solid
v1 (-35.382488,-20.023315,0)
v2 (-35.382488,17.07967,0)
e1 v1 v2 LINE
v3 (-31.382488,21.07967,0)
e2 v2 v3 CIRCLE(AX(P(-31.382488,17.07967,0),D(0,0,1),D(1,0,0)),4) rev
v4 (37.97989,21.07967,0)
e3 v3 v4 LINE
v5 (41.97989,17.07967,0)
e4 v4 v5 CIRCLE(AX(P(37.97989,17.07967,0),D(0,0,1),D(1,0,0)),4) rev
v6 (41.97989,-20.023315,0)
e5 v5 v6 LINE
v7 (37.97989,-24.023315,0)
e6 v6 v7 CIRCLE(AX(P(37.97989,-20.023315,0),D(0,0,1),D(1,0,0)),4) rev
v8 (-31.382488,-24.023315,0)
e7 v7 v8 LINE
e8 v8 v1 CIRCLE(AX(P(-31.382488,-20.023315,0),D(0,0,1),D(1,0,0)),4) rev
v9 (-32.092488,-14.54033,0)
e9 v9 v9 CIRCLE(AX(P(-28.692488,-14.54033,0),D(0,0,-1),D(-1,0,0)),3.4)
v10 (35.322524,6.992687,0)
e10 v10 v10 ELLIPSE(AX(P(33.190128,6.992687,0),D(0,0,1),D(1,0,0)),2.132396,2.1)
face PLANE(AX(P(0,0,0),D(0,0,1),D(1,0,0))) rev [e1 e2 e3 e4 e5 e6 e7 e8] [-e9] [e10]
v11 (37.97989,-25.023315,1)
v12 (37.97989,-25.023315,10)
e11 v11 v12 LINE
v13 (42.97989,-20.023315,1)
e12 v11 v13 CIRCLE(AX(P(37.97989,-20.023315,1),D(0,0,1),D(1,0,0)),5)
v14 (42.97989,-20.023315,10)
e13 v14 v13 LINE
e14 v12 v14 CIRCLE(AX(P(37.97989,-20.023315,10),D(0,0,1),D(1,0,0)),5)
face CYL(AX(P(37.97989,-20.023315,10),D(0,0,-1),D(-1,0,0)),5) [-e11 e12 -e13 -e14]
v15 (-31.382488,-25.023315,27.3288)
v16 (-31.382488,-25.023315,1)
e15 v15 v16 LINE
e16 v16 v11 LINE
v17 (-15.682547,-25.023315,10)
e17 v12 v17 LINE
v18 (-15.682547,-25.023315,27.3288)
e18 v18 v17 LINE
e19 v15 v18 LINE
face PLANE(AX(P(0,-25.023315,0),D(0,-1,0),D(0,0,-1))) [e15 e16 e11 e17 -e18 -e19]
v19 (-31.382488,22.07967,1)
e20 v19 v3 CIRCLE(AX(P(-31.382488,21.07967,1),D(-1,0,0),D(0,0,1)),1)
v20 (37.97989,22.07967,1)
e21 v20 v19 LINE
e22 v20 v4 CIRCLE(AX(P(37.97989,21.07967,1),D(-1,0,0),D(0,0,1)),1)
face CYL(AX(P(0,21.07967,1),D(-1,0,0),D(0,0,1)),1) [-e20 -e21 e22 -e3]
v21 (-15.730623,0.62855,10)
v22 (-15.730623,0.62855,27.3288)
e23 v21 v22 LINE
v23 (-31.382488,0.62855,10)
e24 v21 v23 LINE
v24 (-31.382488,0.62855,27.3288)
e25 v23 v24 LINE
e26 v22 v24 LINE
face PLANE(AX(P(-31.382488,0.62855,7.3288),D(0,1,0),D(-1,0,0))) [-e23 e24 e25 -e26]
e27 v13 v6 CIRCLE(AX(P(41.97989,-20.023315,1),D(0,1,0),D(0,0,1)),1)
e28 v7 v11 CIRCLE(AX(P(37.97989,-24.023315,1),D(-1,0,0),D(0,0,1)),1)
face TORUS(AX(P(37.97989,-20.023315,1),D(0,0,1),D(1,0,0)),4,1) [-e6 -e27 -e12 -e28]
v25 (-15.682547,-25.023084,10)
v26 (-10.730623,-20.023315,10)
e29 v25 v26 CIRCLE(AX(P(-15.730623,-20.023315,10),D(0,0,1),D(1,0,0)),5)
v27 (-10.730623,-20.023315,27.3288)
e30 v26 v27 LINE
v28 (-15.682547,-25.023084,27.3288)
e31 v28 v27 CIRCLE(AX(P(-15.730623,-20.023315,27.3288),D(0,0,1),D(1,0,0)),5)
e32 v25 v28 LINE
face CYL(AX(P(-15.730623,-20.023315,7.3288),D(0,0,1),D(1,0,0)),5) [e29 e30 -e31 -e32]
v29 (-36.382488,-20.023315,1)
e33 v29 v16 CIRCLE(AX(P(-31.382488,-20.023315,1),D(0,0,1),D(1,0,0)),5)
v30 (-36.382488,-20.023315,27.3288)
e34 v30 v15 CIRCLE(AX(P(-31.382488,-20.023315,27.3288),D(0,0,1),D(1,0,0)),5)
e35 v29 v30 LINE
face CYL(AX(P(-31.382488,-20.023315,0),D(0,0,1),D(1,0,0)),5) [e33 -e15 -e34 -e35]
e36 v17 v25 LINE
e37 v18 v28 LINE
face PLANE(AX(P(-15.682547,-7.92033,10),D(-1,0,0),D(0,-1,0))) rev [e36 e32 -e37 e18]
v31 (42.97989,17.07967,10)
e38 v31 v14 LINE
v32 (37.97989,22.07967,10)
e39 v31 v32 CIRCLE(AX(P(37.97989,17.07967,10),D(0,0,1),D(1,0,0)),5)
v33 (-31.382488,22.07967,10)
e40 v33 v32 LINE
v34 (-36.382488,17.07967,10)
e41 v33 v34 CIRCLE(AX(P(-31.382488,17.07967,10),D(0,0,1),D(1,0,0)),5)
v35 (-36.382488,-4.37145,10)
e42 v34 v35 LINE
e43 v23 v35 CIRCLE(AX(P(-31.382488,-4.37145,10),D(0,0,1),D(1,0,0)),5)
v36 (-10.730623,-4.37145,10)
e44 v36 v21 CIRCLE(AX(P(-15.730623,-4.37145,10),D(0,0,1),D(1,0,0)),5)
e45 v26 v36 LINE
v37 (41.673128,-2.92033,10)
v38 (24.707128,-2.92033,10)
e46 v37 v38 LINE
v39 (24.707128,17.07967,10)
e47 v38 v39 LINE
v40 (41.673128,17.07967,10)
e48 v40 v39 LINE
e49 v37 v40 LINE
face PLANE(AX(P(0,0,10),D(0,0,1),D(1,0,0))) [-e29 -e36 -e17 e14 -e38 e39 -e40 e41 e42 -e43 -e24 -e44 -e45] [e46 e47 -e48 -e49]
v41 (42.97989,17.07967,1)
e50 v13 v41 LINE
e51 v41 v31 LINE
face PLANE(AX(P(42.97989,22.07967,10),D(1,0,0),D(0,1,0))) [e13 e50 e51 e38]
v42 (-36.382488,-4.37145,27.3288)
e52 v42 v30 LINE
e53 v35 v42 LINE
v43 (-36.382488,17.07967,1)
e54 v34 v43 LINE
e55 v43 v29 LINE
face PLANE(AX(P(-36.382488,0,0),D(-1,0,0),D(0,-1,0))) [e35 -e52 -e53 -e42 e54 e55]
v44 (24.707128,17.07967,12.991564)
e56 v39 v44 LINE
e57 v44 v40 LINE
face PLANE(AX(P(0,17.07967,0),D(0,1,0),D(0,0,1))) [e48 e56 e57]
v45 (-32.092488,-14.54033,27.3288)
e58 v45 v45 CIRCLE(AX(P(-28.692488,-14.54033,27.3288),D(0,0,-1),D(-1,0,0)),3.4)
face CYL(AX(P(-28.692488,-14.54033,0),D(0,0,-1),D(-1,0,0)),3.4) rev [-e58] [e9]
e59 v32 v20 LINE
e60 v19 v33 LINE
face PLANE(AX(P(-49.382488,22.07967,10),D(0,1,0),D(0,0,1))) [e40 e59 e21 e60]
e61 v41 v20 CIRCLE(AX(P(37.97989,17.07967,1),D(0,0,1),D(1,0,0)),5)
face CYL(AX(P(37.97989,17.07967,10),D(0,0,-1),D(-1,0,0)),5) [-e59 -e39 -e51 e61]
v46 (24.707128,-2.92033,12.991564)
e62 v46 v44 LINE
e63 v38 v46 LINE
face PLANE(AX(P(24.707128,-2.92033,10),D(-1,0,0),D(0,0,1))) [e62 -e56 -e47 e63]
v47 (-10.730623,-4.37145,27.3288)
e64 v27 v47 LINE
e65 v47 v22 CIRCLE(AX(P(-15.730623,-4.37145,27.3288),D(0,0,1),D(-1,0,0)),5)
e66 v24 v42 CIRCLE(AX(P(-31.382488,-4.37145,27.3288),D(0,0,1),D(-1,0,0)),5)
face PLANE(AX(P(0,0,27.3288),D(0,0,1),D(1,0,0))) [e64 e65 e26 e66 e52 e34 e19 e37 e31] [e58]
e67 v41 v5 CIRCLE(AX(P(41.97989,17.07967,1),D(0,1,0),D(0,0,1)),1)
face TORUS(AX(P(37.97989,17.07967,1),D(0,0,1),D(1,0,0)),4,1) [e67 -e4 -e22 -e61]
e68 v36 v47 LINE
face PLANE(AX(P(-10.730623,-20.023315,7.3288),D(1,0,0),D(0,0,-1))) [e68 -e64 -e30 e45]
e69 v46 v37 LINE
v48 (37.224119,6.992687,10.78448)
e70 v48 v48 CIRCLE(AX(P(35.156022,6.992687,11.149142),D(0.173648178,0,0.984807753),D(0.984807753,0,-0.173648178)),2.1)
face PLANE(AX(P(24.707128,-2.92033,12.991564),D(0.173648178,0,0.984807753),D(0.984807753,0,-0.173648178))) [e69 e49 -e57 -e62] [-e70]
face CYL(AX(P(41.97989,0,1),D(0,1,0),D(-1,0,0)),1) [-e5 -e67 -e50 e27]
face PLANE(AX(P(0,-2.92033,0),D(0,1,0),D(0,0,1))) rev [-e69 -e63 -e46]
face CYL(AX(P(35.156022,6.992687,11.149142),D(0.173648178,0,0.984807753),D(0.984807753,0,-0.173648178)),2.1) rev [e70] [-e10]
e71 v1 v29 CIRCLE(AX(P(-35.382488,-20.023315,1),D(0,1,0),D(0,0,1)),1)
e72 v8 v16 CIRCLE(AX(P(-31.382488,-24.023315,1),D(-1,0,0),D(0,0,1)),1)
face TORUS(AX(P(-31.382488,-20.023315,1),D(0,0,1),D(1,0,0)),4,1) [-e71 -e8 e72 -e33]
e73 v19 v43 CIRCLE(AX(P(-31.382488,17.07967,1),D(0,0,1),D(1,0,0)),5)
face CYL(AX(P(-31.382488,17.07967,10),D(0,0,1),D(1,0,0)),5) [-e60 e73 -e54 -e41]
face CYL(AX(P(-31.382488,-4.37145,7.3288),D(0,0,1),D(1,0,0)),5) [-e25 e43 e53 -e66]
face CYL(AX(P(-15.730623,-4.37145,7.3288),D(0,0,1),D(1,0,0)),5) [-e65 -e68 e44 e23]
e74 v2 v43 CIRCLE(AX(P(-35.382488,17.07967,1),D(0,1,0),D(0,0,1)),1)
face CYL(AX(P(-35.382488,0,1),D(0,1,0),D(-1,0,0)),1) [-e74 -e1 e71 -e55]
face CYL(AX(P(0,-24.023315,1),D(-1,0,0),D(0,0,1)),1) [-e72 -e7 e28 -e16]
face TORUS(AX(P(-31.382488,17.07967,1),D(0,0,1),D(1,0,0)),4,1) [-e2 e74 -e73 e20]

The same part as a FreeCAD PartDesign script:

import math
import FreeCAD as App
import Part
import Sketcher

V = App.Vector
Q = App.Units.Quantity


def edges_at(feature, points):
    """Names of the edges that pass closest to the given points."""
    edges = feature.Shape.Edges
    near = lambda p: min(range(len(edges)), key=lambda i: edges[i].distToShape(Part.Vertex(*p))[0])
    return sorted({f"Edge{near(p) + 1}" for p in points})


def add_polygon(sketch, points):
    """Adds a closed chain of lines whose ends are joined by coincident constraints."""
    first, n = sketch.GeometryCount, len(points)
    for a, b in zip(points, points[1:] + points[:1]):
        sketch.addGeometry(Part.LineSegment(App.Vector(*a, 0), App.Vector(*b, 0)), False)
    for i in range(n):
        sketch.addConstraint(Sketcher.Constraint("Coincident", first + i, 2, first + (i + 1) % n, 1))

doc = App.newDocument("Part")
body = doc.addObject("PartDesign::Body", "Body")

sketch1 = doc.addObject("Sketcher::SketchObject", "Sketch")
body.addObject(sketch1)
sketch1.AttachmentSupport = (doc.XY_Plane, [""])
sketch1.MapMode = "FlatFace"
add_polygon(sketch1, [(42.97989, 22.07967), (-49.382488, 22.07967), (-49.382488, -7.92033), (-49.382488, -41.023315), (-5.682547, -41.023315), (-5.682547, -7.92033), (42.97989, -7.92033)])
sketch1.addConstraint([
    Sketcher.Constraint("Horizontal", 0),
    Sketcher.Constraint("Vertical", 1),
    Sketcher.Constraint("Vertical", 2),
    Sketcher.Constraint("Horizontal", 3),
    Sketcher.Constraint("Vertical", 4),
    Sketcher.Constraint("Horizontal", 5),
    Sketcher.Constraint("Vertical", 6),
    Sketcher.Constraint("Horizontal", 1, 2, 4, 2),
    Sketcher.Constraint("DistanceY", 1, 2, 1, 1, Q("30 mm")),
    Sketcher.Constraint("DistanceX", 0, 2, 0, 1, Q("92.362378 mm")),
    Sketcher.Constraint("DistanceX", 3, 1, 3, 2, Q("43.699941 mm")),
    Sketcher.Constraint("DistanceY", 2, 2, 2, 1, Q("33.102985 mm")),
    Sketcher.Constraint("DistanceY", -1, 1, 0, 2, Q("22.07967 mm")),
    Sketcher.Constraint("DistanceX", -1, 1, 5, 2, Q("42.97989 mm")),
])
pad1 = doc.addObject("PartDesign::Pad", "Pad")
body.addObject(pad1)
pad1.Profile = sketch1
pad1.Length = 10

sketch2 = doc.addObject("Sketcher::SketchObject", "Sketch001")
body.addObject(sketch2)
sketch2.AttachmentSupport = (doc.XZ_Plane, [""])
sketch2.MapMode = "FlatFace"
sketch2.AttachmentOffset = App.Placement(V(0, 0, -7.07967), App.Rotation())
add_polygon(sketch2, [(24.707128, 12.991564), (24.707128, 10), (41.673128, 10)])
sketch2.addConstraint([
    Sketcher.Constraint("Vertical", 0),
    Sketcher.Constraint("Horizontal", 1),
    Sketcher.Constraint("Angle", 2, Q("170 deg")),
    Sketcher.Constraint("DistanceY", -1, 1, 0, 2, Q("10 mm")),
    Sketcher.Constraint("DistanceX", 1, 1, 1, 2, Q("16.966 mm")),
    Sketcher.Constraint("DistanceX", -1, 1, 0, 2, Q("24.707128 mm")),
])
pad2 = doc.addObject("PartDesign::Pad", "Pad001")
body.addObject(pad2)
pad2.Profile = sketch2
pad2.Length = 20
pad2.Midplane = True

sketch3 = doc.addObject("Sketcher::SketchObject", "Sketch002")
body.addObject(sketch3)
sketch3.Placement = App.Placement(V(2.966699, 0, 16.824988), App.Rotation(V(0.984807753, 0, -0.173648178), V(0, 1, 0), V(0.173648178, 0, 0.984807753), "ZXY"))
sketch3.addGeometry(Part.Circle(V(32.685895, 6.992687, 0), V(0, 0, 1), 2.1), False)
sketch3.addConstraint([
    Sketcher.Constraint("Diameter", 0, Q("4.2 mm")),
    Sketcher.Constraint("DistanceX", -1, 1, 0, 3, Q("32.685895 mm")),
    Sketcher.Constraint("DistanceY", -1, 1, 0, 3, Q("6.992687 mm")),
])
doc.recompute()
hole = doc.addObject("PartDesign::Hole", "Hole")
body.addObject(hole)
hole.Profile = sketch3
hole.ThreadType = "None"
hole.Diameter = 4.2
hole.DepthType = "ThroughAll"

sketch4 = doc.addObject("Sketcher::SketchObject", "Sketch003")
body.addObject(sketch4)
sketch4.AttachmentSupport = (doc.XY_Plane, [""])
sketch4.MapMode = "FlatFace"
sketch4.AttachmentOffset = App.Placement(V(0, 0, 10), App.Rotation())
add_polygon(sketch4, [(-49.382488, -41.023315), (-5.682547, -41.023315), (-5.682547, -25.023315), (-36.382488, -25.023315), (-36.382488, 22.07967), (-49.382488, 22.07967)])
sketch4.addConstraint([
    Sketcher.Constraint("Horizontal", 0),
    Sketcher.Constraint("Vertical", 1),
    Sketcher.Constraint("Horizontal", 2),
    Sketcher.Constraint("Vertical", 3),
    Sketcher.Constraint("Horizontal", 4),
    Sketcher.Constraint("Vertical", 5),
    Sketcher.Constraint("DistanceX", 4, 2, 4, 1, Q("13 mm")),
    Sketcher.Constraint("DistanceY", 1, 1, 1, 2, Q("16 mm")),
    Sketcher.Constraint("DistanceX", 0, 1, 0, 2, Q("43.699941 mm")),
    Sketcher.Constraint("DistanceY", 3, 1, 3, 2, Q("47.102985 mm")),
    Sketcher.Constraint("DistanceY", -1, 1, 3, 2, Q("22.07967 mm")),
    Sketcher.Constraint("DistanceX", 0, 2, -1, 1, Q("5.682547 mm")),
])
pocket1 = doc.addObject("PartDesign::Pocket", "Pocket")
body.addObject(pocket1)
pocket1.Profile = sketch4
pocket1.Length = 10

sketch5 = doc.addObject("Sketcher::SketchObject", "Sketch004")
body.addObject(sketch5)
sketch5.AttachmentSupport = (doc.XY_Plane, [""])
sketch5.MapMode = "FlatFace"
add_polygon(sketch5, [(-5.682547, -7.92033), (-5.682547, -25.023315), (-15.682547, -25.023315), (-15.682547, -7.92033)])
sketch5.addConstraint([
    Sketcher.Constraint("Vertical", 0),
    Sketcher.Constraint("Horizontal", 1),
    Sketcher.Constraint("Vertical", 2),
    Sketcher.Constraint("Horizontal", 3),
    Sketcher.Constraint("DistanceX", 1, 2, 1, 1, Q("10 mm")),
    Sketcher.Constraint("DistanceY", 0, 2, 0, 1, Q("17.102985 mm")),
    Sketcher.Constraint("DistanceY", 2, 2, -1, 1, Q("7.92033 mm")),
    Sketcher.Constraint("DistanceX", 0, 2, -1, 1, Q("5.682547 mm")),
])
pocket2 = doc.addObject("PartDesign::Pocket", "Pocket001")
body.addObject(pocket2)
pocket2.Profile = sketch5
pocket2.Length = 10
pocket2.Reversed = True

sketch6 = doc.addObject("Sketcher::SketchObject", "Sketch005")
body.addObject(sketch6)
sketch6.AttachmentSupport = (doc.XY_Plane, [""])
sketch6.MapMode = "FlatFace"
sketch6.AttachmentOffset = App.Placement(V(0, 0, 10), App.Rotation())
add_polygon(sketch6, [(-36.382488, -7.92033), (-36.382488, -25.023315), (-15.682547, -25.023315), (-15.682547, -7.92033)])
sketch6.addConstraint([
    Sketcher.Constraint("Vertical", 0),
    Sketcher.Constraint("Horizontal", 1),
    Sketcher.Constraint("Vertical", 2),
    Sketcher.Constraint("Horizontal", 3),
    Sketcher.Constraint("DistanceX", 1, 1, 1, 2, Q("20.699941 mm")),
    Sketcher.Constraint("DistanceY", 0, 2, 0, 1, Q("17.102985 mm")),
    Sketcher.Constraint("DistanceY", 2, 2, -1, 1, Q("7.92033 mm")),
    Sketcher.Constraint("DistanceX", 0, 2, -1, 1, Q("36.382488 mm")),
])
pad3 = doc.addObject("PartDesign::Pad", "Pad002")
body.addObject(pad3)
pad3.Profile = sketch6
pad3.Length = 17.3288

sketch7 = doc.addObject("Sketcher::SketchObject", "Sketch006")
body.addObject(sketch7)
sketch7.AttachmentSupport = (doc.XY_Plane, [""])
sketch7.MapMode = "FlatFace"
add_polygon(sketch7, [(42.97989, -7.92033), (42.97989, -25.023315), (-15.682547, -25.023315), (-15.682547, -7.92033)])
sketch7.addConstraint([
    Sketcher.Constraint("Vertical", 0),
    Sketcher.Constraint("Horizontal", 1),
    Sketcher.Constraint("Vertical", 2),
    Sketcher.Constraint("Horizontal", 3),
    Sketcher.Constraint("DistanceX", 1, 2, 1, 1, Q("58.662438 mm")),
    Sketcher.Constraint("DistanceY", 0, 2, 0, 1, Q("17.102985 mm")),
    Sketcher.Constraint("DistanceX", -1, 1, 0, 2, Q("42.97989 mm")),
    Sketcher.Constraint("DistanceY", 2, 2, -1, 1, Q("7.92033 mm")),
])
pad4 = doc.addObject("PartDesign::Pad", "Pad003")
body.addObject(pad4)
pad4.Profile = sketch7
pad4.Length = 10

sketch8 = doc.addObject("Sketcher::SketchObject", "Sketch007")
body.addObject(sketch8)
sketch8.AttachmentSupport = (doc.XY_Plane, [""])
sketch8.MapMode = "FlatFace"
sketch8.AttachmentOffset = App.Placement(V(0, 0, 27.3288), App.Rotation())
sketch8.addGeometry([
    Part.LineSegment(V(-36.382488, -25.023315, 0), V(-15.730623, -25.023315, 0)),
    Part.ArcOfCircle(Part.Circle(V(-15.730623, -20.023315, 0), V(0, 0, 1), 5), math.radians(-90), math.radians(0)),
    Part.LineSegment(V(-10.730623, -20.023315, 0), V(-10.730623, -4.37145, 0)),
    Part.ArcOfCircle(Part.Circle(V(-15.730623, -4.37145, 0), V(0, 0, 1), 5), math.radians(0), math.radians(90)),
    Part.LineSegment(V(-15.730623, 0.62855, 0), V(-31.382488, 0.62855, 0)),
    Part.ArcOfCircle(Part.Circle(V(-31.382488, -4.37145, 0), V(0, 0, 1), 5), math.radians(90), math.radians(180)),
    Part.LineSegment(V(-36.382488, -4.37145, 0), V(-36.382488, -25.023315, 0)),
], False)
sketch8.addConstraint([
    Sketcher.Constraint("Tangent", 0, 2, 1, 1),
    Sketcher.Constraint("Tangent", 1, 2, 2, 1),
    Sketcher.Constraint("Tangent", 2, 2, 3, 1),
    Sketcher.Constraint("Tangent", 3, 2, 4, 1),
    Sketcher.Constraint("Tangent", 4, 2, 5, 1),
    Sketcher.Constraint("Tangent", 5, 2, 6, 1),
    Sketcher.Constraint("Coincident", 6, 2, 0, 1),
    Sketcher.Constraint("Horizontal", 0),
    Sketcher.Constraint("Vertical", 2),
    Sketcher.Constraint("Horizontal", 4),
    Sketcher.Constraint("Vertical", 6),
    Sketcher.Constraint("Equal", 1, 3),
    Sketcher.Constraint("Equal", 3, 5),
    Sketcher.Constraint("Equal", 4, 2),
    Sketcher.Constraint("Radius", 1, Q("5 mm")),
    Sketcher.Constraint("DistanceX", 0, 1, 0, 2, Q("20.651865 mm")),
    Sketcher.Constraint("DistanceY", 3, 3, -1, 1, Q("4.37145 mm")),
    Sketcher.Constraint("DistanceX", 1, 3, -1, 1, Q("15.730623 mm")),
])
pad5 = doc.addObject("PartDesign::Pad", "Pad004")
body.addObject(pad5)
pad5.Profile = sketch8
pad5.Length = 20
pad5.Reversed = True

sketch9 = doc.addObject("Sketcher::SketchObject", "Sketch008")
body.addObject(sketch9)
sketch9.AttachmentSupport = (doc.XY_Plane, [""])
sketch9.MapMode = "FlatFace"
sketch9.addGeometry(Part.Circle(V(-28.692488, -14.54033, 0), V(0, 0, 1), 3.4), False)
sketch9.addConstraint([
    Sketcher.Constraint("Diameter", 0, Q("6.8 mm")),
    Sketcher.Constraint("DistanceY", 0, 3, -1, 1, Q("14.54033 mm")),
    Sketcher.Constraint("DistanceX", 0, 3, -1, 1, Q("28.692488 mm")),
])
doc.recompute()
hole2 = doc.addObject("PartDesign::Hole", "Hole001")
body.addObject(hole2)
hole2.Profile = sketch9
hole2.ThreadType = "None"
hole2.Diameter = 6.8
hole2.DepthType = "ThroughAll"
hole2.Reversed = True
doc.recompute()

fillet = doc.addObject("PartDesign::Fillet", "Fillet")
body.addObject(fillet)
fillet.Base = (hole2, edges_at(hole2, [(-36.382, -25.023, 18.664)]))
fillet.Radius = 5
doc.recompute()

fillet2 = doc.addObject("PartDesign::Fillet", "Fillet001")
body.addObject(fillet2)
fillet2.Base = (fillet, edges_at(fillet, [(-36.382, 22.08, 5), (42.98, 22.08, 5), (42.98, -25.023, 5)]))
fillet2.Radius = 5
doc.recompute()

fillet3 = doc.addObject("PartDesign::Fillet", "Fillet002")
body.addObject(fillet3)
fillet3.Base = (fillet2, edges_at(fillet2, [
    (3.299, -25.023, 0),
    (-34.918, -23.559, 0),
    (3.299, 22.08, 0),
    (-36.382, -1.472, 0),
    (42.98, 4.58, 0),
    (-34.918, 20.615, 0),
    (41.515, -23.559, 0),
    (41.515, 20.615, 0),
]))
fillet3.Radius = 1

doc.recompute()
